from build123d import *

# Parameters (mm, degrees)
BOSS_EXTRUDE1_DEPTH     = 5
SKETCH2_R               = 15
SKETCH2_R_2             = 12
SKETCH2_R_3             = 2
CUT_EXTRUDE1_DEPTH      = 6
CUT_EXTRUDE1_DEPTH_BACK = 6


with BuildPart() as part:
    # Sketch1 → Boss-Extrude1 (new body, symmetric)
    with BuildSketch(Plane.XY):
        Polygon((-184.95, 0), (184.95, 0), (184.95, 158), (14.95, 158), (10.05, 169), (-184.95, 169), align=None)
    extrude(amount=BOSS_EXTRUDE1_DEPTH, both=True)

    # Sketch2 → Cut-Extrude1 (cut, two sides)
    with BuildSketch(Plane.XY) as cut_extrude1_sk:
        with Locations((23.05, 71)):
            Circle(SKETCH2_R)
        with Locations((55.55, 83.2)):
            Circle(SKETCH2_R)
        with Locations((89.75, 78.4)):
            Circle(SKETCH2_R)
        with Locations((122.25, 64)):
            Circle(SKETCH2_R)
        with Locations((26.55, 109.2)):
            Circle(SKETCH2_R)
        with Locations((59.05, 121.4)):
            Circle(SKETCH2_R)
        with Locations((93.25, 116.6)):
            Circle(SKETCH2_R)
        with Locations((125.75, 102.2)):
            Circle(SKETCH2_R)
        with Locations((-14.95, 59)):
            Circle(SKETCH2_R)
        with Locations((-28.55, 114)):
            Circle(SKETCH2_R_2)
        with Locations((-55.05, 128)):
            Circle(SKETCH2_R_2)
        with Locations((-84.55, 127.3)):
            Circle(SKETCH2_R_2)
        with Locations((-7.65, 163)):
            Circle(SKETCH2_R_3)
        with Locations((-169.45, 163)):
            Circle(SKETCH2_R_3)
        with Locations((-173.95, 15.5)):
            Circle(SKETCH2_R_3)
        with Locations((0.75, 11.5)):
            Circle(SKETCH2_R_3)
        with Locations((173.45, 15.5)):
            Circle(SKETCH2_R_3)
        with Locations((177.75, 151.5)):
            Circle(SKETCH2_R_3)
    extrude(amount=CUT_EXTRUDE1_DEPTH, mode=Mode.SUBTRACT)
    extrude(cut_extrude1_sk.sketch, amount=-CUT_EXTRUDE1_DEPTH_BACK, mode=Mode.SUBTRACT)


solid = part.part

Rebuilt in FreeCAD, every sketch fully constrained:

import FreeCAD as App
import Part
import Sketcher
Q = App.Units.Quantity


def add_polygon(sketch, points):
    """Adds a closed chain of lines whose ends are joined by coincident constraints."""
    first, n = sketch.GeometryCount, len(points)
    for a, b in zip(points, points[1:] + points[:1]):
        sketch.addGeometry(Part.LineSegment(App.Vector(*a, 0), App.Vector(*b, 0)), False)
    for i in range(n):
        sketch.addConstraint(Sketcher.Constraint("Coincident", first + i, 2, first + (i + 1) % n, 1))

doc = App.newDocument("Part")
params = doc.addObject("Spreadsheet::Sheet", "Params")
for row, (alias, value) in enumerate([
    ("sketch1_width", "170 mm"),
    ("sketch1_width2", "195 mm"),
    ("sketch1_height", "158 mm"),
    ("sketch1_height2", "169 mm"),
    ("sketch1_width3", "369.9 mm"),
    ("pad1_length", "10 mm"),
    ("sketch2_diameter", "30 mm"),
    ("sketch2_diameter2", "24 mm"),
    ("sketch2_diameter3", "4 mm"),
], start=1):
    params.set(f"A{row}", alias)
    params.set(f"B{row}", "=" + value)
    params.setAlias(f"B{row}", alias)

body = doc.addObject("PartDesign::Body", "Body")

# Sketch on XY plane
sketch1 = doc.addObject("Sketcher::SketchObject", "Sketch")
body.addObject(sketch1)
sketch1.AttachmentSupport = (doc.XY_Plane, [""])
sketch1.MapMode = "FlatFace"
add_polygon(sketch1, [(-184.95, 0), (184.95, 0), (184.95, 158), (14.95, 158), (10.05, 169), (-184.95, 169)])  # lines 0-5
sketch1.addConstraint([
    Sketcher.Constraint("Horizontal", 0),
    Sketcher.Constraint("Vertical", 1),
    Sketcher.Constraint("Horizontal", 2),
    Sketcher.Constraint("Horizontal", 4),
    Sketcher.Constraint("Vertical", 5),
    Sketcher.Constraint("Symmetric", 0, 2, 5, 2, -1, 1),
    Sketcher.Constraint("DistanceX", 2, 2, 2, 1, Q("170 mm")),
    Sketcher.Constraint("DistanceX", 4, 2, 4, 1, Q("195 mm")),
    Sketcher.Constraint("DistanceY", 1, 1, 1, 2, Q("158 mm")),
    Sketcher.Constraint("DistanceY", 5, 2, 5, 1, Q("169 mm")),
    Sketcher.Constraint("DistanceX", 0, 1, 0, 2, Q("369.9 mm")),
])
sketch1.setExpression("Constraints[12]", "Params.sketch1_width")
sketch1.setExpression("Constraints[13]", "Params.sketch1_width2")
sketch1.setExpression("Constraints[14]", "Params.sketch1_height")
sketch1.setExpression("Constraints[15]", "Params.sketch1_height2")
sketch1.setExpression("Constraints[16]", "Params.sketch1_width3")
pad1 = doc.addObject("PartDesign::Pad", "Pad")
body.addObject(pad1)
pad1.Profile = sketch1
pad1.setExpression("Length", "Params.pad1_length")
pad1.Midplane = True

# Sketch on XY plane
sketch2 = doc.addObject("Sketcher::SketchObject", "Sketch001")
body.addObject(sketch2)
sketch2.AttachmentSupport = (doc.XY_Plane, [""])
sketch2.MapMode = "FlatFace"
sketch2.addGeometry([
    Part.Circle(App.Vector(23.05, 71, 0), App.Vector(0, 0, 1), 15),  # 0
    Part.Circle(App.Vector(55.55, 83.2, 0), App.Vector(0, 0, 1), 15),  # 1
    Part.Circle(App.Vector(89.75, 78.4, 0), App.Vector(0, 0, 1), 15),  # 2
    Part.Circle(App.Vector(122.25, 64, 0), App.Vector(0, 0, 1), 15),  # 3
    Part.Circle(App.Vector(26.55, 109.2, 0), App.Vector(0, 0, 1), 15),  # 4
    Part.Circle(App.Vector(59.05, 121.4, 0), App.Vector(0, 0, 1), 15),  # 5
    Part.Circle(App.Vector(93.25, 116.6, 0), App.Vector(0, 0, 1), 15),  # 6
    Part.Circle(App.Vector(125.75, 102.2, 0), App.Vector(0, 0, 1), 15),  # 7
    Part.Circle(App.Vector(-14.95, 59, 0), App.Vector(0, 0, 1), 15),  # 8
    Part.Circle(App.Vector(-28.55, 114, 0), App.Vector(0, 0, 1), 12),  # 9
    Part.Circle(App.Vector(-55.05, 128, 0), App.Vector(0, 0, 1), 12),  # 10
    Part.Circle(App.Vector(-84.55, 127.3, 0), App.Vector(0, 0, 1), 12),  # 11
    Part.Circle(App.Vector(-7.65, 163, 0), App.Vector(0, 0, 1), 2),  # 12
    Part.Circle(App.Vector(-169.45, 163, 0), App.Vector(0, 0, 1), 2),  # 13
    Part.Circle(App.Vector(-173.95, 15.5, 0), App.Vector(0, 0, 1), 2),  # 14
    Part.Circle(App.Vector(0.75, 11.5, 0), App.Vector(0, 0, 1), 2),  # 15
    Part.Circle(App.Vector(173.45, 15.5, 0), App.Vector(0, 0, 1), 2),  # 16
    Part.Circle(App.Vector(177.75, 151.5, 0), App.Vector(0, 0, 1), 2),  # 17
], False)
sketch2.addConstraint([
    Sketcher.Constraint("Equal", 0, 1),
    Sketcher.Constraint("Equal", 1, 2),
    Sketcher.Constraint("Equal", 2, 3),
    Sketcher.Constraint("Equal", 3, 4),
    Sketcher.Constraint("Equal", 4, 5),
    Sketcher.Constraint("Equal", 5, 6),
    Sketcher.Constraint("Equal", 6, 7),
    Sketcher.Constraint("Equal", 7, 8),
    Sketcher.Constraint("Equal", 9, 10),
    Sketcher.Constraint("Equal", 10, 11),
    Sketcher.Constraint("Equal", 12, 13),
    Sketcher.Constraint("Equal", 13, 14),
    Sketcher.Constraint("Equal", 14, 15),
    Sketcher.Constraint("Equal", 15, 16),
    Sketcher.Constraint("Equal", 16, 17),
    Sketcher.Constraint("Horizontal", 12, 3, 13, 3),
    Sketcher.Constraint("Horizontal", 14, 3, 16, 3),
    Sketcher.Constraint("Diameter", 0, Q("30 mm")),
    Sketcher.Constraint("Diameter", 9, Q("24 mm")),
    Sketcher.Constraint("Diameter", 12, Q("4 mm")),
    Sketcher.Constraint("DistanceY", -1, 1, 0, 3, Q("71 mm")),
    Sketcher.Constraint("DistanceY", -1, 1, 3, 3, Q("64 mm")),
    Sketcher.Constraint("DistanceY", -1, 1, 8, 3, Q("59 mm")),
    Sketcher.Constraint("DistanceY", -1, 1, 9, 3, Q("114 mm")),
    Sketcher.Constraint("DistanceY", -1, 1, 10, 3, Q("128 mm")),
    Sketcher.Constraint("DistanceY", -1, 1, 12, 3, Q("163 mm")),
    Sketcher.Constraint("DistanceX", 4, 3, 1, 3, Q("29 mm")),
    Sketcher.Constraint("DistanceY", 1, 3, 4, 3, Q("26 mm")),
    Sketcher.Constraint("DistanceY", 2, 3, 5, 3, Q("43 mm")),
    Sketcher.Constraint("DistanceX", 0, 3, 5, 3, Q("36 mm")),
    Sketcher.Constraint("DistanceX", 6, 3, 3, 3, Q("29 mm")),
    Sketcher.Constraint("DistanceX", 2, 3, 7, 3, Q("36 mm")),
    Sketcher.Constraint("DistanceY", 1, 3, 7, 3, Q("19 mm")),
    Sketcher.Constraint("DistanceX", 8, 3, 0, 3, Q("38 mm")),
    Sketcher.Constraint("DistanceX", 11, 3, 9, 3, Q("56 mm")),
    Sketcher.Constraint("DistanceX", 14, 3, 8, 3, Q("159 mm")),
    Sketcher.Constraint("DistanceX", 7, 3, 17, 3, Q("52 mm")),
    Sketcher.Constraint("DistanceY", -1, 1, 1, 3, Q("83.2 mm")),
    Sketcher.Constraint("DistanceY", -1, 1, 2, 3, Q("78.4 mm")),
    Sketcher.Constraint("DistanceY", -1, 1, 6, 3, Q("116.6 mm")),
    Sketcher.Constraint("DistanceY", -1, 1, 11, 3, Q("127.3 mm")),
    Sketcher.Constraint("DistanceY", -1, 1, 14, 3, Q("15.5 mm")),
    Sketcher.Constraint("DistanceY", -1, 1, 15, 3, Q("11.5 mm")),
    Sketcher.Constraint("DistanceY", -1, 1, 17, 3, Q("151.5 mm")),
    Sketcher.Constraint("DistanceX", 0, 3, 1, 3, Q("32.5 mm")),
    Sketcher.Constraint("DistanceX", 1, 3, 2, 3, Q("34.2 mm")),
    Sketcher.Constraint("DistanceX", 2, 3, 3, 3, Q("32.5 mm")),
    Sketcher.Constraint("DistanceX", 9, 3, 4, 3, Q("55.1 mm")),
    Sketcher.Constraint("DistanceX", 10, 3, 9, 3, Q("26.5 mm")),
    Sketcher.Constraint("DistanceX", 9, 3, 12, 3, Q("20.9 mm")),
    Sketcher.Constraint("DistanceX", 13, 3, 11, 3, Q("84.9 mm")),
    Sketcher.Constraint("DistanceX", 8, 3, 15, 3, Q("15.7 mm")),
    Sketcher.Constraint("DistanceX", 3, 3, 16, 3, Q("51.2 mm")),
    Sketcher.Constraint("DistanceX", -1, 1, 0, 3, Q("23.05 mm")),
])
sketch2.setExpression("Constraints[17]", "Params.sketch2_diameter")
sketch2.setExpression("Constraints[18]", "Params.sketch2_diameter2")
sketch2.setExpression("Constraints[19]", "Params.sketch2_diameter3")
pocket1 = doc.addObject("PartDesign::Pocket", "Pocket")
body.addObject(pocket1)
pocket1.Profile = sketch2
pocket1.Type = "ThroughAll"
pocket1.Midplane = True

doc.recompute()
